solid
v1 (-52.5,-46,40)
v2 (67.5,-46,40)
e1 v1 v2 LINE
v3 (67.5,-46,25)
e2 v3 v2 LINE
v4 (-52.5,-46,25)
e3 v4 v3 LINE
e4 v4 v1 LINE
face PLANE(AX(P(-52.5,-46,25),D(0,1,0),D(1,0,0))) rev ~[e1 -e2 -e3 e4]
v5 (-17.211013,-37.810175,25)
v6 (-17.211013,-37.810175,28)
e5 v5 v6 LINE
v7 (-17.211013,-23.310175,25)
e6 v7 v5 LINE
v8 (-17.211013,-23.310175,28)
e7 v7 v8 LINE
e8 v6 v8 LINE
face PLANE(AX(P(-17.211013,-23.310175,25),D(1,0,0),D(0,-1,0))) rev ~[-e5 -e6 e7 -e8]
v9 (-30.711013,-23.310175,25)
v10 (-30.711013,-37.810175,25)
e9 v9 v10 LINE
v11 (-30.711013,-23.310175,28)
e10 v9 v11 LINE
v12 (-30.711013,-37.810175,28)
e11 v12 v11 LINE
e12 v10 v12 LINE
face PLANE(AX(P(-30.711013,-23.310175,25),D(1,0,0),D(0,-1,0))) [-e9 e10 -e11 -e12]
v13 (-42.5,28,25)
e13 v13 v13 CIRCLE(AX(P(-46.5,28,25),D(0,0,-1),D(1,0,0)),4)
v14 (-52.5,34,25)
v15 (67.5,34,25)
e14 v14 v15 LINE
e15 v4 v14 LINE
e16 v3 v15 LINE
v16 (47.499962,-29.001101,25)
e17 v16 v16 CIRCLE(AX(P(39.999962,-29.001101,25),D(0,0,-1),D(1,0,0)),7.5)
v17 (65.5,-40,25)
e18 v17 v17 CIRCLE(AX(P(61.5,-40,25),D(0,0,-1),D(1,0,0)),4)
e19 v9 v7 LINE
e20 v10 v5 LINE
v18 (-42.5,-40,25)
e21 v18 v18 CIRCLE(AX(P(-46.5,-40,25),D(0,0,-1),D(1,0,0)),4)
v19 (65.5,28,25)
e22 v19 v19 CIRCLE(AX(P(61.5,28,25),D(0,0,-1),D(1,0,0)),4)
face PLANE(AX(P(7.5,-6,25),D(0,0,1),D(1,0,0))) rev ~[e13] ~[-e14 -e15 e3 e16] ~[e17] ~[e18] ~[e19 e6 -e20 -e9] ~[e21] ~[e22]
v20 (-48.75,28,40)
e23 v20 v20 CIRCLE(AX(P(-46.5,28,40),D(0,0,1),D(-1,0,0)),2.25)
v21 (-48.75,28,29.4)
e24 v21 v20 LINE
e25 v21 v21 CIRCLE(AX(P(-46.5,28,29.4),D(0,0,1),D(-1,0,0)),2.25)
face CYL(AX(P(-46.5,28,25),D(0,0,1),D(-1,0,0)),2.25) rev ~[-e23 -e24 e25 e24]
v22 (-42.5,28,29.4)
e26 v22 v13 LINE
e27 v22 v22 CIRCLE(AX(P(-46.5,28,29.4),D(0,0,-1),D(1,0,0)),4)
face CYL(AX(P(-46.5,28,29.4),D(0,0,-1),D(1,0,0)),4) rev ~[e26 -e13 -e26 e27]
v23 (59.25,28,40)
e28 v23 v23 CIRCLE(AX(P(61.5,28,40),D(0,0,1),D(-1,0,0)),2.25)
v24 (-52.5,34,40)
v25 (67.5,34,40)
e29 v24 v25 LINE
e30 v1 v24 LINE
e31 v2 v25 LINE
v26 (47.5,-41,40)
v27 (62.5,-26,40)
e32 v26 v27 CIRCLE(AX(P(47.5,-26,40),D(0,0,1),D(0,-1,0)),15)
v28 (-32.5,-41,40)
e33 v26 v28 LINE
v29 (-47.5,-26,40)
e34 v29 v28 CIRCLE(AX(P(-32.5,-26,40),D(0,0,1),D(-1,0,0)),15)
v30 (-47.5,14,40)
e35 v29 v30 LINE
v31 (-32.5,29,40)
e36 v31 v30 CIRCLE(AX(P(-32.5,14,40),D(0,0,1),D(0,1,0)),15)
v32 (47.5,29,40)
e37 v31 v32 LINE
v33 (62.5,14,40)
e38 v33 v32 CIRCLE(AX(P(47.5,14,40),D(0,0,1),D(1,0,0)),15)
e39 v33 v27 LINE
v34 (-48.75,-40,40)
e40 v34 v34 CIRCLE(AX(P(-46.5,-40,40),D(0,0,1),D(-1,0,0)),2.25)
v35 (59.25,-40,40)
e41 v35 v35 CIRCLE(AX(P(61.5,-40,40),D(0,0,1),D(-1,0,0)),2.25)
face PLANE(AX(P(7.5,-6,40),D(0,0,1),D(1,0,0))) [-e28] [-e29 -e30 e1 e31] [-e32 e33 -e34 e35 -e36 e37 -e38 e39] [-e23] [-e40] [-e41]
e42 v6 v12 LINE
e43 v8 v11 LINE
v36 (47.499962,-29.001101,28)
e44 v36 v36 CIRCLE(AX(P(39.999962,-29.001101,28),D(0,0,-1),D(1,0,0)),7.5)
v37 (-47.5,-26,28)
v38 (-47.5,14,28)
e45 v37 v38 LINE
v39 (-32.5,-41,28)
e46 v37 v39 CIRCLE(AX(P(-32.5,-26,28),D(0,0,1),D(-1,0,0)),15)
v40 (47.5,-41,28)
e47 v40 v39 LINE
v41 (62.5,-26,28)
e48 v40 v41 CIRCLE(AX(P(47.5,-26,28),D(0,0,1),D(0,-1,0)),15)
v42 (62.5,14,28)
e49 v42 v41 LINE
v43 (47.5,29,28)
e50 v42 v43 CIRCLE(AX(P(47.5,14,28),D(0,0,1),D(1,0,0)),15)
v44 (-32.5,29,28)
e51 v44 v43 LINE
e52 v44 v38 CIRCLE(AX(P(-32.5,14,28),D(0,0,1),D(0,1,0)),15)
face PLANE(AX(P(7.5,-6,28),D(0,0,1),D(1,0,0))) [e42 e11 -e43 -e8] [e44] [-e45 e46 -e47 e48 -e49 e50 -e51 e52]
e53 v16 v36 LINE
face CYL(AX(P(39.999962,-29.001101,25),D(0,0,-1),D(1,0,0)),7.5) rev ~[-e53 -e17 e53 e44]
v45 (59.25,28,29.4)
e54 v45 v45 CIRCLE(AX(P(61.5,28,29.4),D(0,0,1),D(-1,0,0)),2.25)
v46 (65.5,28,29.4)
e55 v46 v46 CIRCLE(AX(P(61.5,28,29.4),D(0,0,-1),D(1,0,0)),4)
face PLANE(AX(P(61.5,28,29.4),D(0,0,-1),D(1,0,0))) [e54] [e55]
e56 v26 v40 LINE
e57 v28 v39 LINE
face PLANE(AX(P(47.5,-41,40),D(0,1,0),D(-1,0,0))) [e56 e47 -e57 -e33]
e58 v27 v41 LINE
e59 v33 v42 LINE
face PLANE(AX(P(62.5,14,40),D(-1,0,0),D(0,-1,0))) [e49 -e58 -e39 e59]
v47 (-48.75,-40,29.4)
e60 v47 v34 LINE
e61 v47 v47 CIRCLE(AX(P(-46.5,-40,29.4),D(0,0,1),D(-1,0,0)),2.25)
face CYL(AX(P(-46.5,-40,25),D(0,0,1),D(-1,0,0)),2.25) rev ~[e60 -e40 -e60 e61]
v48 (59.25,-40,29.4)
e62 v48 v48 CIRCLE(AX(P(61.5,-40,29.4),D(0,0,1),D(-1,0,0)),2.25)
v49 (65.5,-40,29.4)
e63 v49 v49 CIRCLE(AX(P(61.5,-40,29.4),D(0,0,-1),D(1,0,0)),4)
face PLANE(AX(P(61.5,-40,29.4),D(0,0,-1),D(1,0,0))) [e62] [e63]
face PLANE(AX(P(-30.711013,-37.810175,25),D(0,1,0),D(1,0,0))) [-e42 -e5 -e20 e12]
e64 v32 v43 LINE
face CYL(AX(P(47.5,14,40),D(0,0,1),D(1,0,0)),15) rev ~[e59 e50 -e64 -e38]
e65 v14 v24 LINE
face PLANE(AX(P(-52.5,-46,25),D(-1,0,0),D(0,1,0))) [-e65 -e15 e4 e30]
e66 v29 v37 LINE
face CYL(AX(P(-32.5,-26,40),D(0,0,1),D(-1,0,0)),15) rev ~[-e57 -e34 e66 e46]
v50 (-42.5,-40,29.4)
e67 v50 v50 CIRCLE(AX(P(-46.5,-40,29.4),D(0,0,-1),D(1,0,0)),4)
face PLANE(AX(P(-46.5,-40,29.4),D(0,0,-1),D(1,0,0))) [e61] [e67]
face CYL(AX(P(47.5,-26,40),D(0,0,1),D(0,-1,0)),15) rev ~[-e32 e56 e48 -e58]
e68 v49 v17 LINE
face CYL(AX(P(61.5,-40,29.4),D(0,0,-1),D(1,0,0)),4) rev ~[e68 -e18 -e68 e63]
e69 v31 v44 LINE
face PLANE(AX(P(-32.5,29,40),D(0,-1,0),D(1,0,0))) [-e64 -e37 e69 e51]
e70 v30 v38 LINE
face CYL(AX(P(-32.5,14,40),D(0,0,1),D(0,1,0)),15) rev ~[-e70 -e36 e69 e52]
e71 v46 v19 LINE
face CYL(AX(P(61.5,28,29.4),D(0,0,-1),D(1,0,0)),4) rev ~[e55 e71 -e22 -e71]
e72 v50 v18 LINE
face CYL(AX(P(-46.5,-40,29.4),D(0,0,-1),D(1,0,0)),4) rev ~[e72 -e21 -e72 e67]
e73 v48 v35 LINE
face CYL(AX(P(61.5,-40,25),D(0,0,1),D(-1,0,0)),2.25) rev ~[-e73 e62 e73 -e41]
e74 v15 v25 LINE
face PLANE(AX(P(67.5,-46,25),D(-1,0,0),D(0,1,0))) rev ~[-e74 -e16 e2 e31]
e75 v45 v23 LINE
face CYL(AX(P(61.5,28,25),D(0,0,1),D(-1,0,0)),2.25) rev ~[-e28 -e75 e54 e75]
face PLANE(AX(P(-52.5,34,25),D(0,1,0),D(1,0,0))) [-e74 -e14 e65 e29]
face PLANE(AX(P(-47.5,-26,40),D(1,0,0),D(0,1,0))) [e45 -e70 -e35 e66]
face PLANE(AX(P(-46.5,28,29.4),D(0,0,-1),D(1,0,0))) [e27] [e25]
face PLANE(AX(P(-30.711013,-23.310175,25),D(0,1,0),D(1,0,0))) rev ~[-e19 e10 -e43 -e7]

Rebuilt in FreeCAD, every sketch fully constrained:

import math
import FreeCAD as App
import Part
import Sketcher
from FreeCAD import Vector
Q = App.Units.Quantity

doc = App.newDocument("Part")
body = doc.addObject("PartDesign::Body", "Body")

# Sketch on XY plane
sketch1 = body.newObject("Sketcher::SketchObject", "Sketch")
sketch1.AttachmentSupport = (doc.getObject("XY_Plane"), [""])
sketch1.MapMode = "FlatFace"
sketch1.AttachmentOffset = App.Placement(Vector(0, 0, 25), App.Rotation())
sketch1.addGeometry(Part.LineSegment(Vector(-52, 34, 0), Vector(-52, -46, 0)), False)
sketch1.addGeometry(Part.LineSegment(Vector(-52, -46, 0), Vector(68, -46, 0)), False)
sketch1.addGeometry(Part.LineSegment(Vector(68, -46, 0), Vector(68, 34, 0)), False)
sketch1.addGeometry(Part.LineSegment(Vector(68, 34, 0), Vector(-52, 34, 0)), False)
sketch1.addConstraint(Sketcher.Constraint("Coincident", 0, 2, 1, 1))
sketch1.addConstraint(Sketcher.Constraint("Coincident", 1, 2, 2, 1))
sketch1.addConstraint(Sketcher.Constraint("Coincident", 2, 2, 3, 1))
sketch1.addConstraint(Sketcher.Constraint("Coincident", 3, 2, 0, 1))
sketch1.addConstraint(Sketcher.Constraint("Vertical", 0))
sketch1.addConstraint(Sketcher.Constraint("Horizontal", 1))
sketch1.addConstraint(Sketcher.Constraint("Vertical", 2))
sketch1.addConstraint(Sketcher.Constraint("Horizontal", 3))
sketch1.addConstraint(Sketcher.Constraint("DistanceX", 1, 1, 1, 2, Q("120 mm")))
sketch1.addConstraint(Sketcher.Constraint("DistanceY", 0, 2, 0, 1, Q("80 mm")))
sketch1.addConstraint(Sketcher.Constraint("DistanceY", 0, 2, -1, 1, Q("46 mm")))
sketch1.addConstraint(Sketcher.Constraint("DistanceX", 0, 2, -1, 1, Q("52.5 mm")))
pad1 = body.newObject("PartDesign::Pad", "Pad")
pad1.Profile = sketch1
pad1.Length = 15

# Sketch on XY plane
sketch2 = body.newObject("Sketcher::SketchObject", "Sketch001")
sketch2.AttachmentSupport = (doc.getObject("XY_Plane"), [""])
sketch2.MapMode = "FlatFace"
sketch2.AttachmentOffset = App.Placement(Vector(0, 0, 40), App.Rotation())
sketch2.addGeometry(Part.ArcOfCircle(Part.Circle(Vector(-32, 14, 0), Vector(0, 0, 1), 15), math.radians(90), math.radians(180)), False)
sketch2.addGeometry(Part.LineSegment(Vector(-48, 14, 0), Vector(-48, -26, 0)), False)
sketch2.addGeometry(Part.ArcOfCircle(Part.Circle(Vector(-32, -26, 0), Vector(0, 0, 1), 15), math.radians(180), math.radians(270)), False)
sketch2.addGeometry(Part.LineSegment(Vector(-32, -41, 0), Vector(48, -41, 0)), False)
sketch2.addGeometry(Part.ArcOfCircle(Part.Circle(Vector(48, -26, 0), Vector(0, 0, 1), 15), math.radians(-90), math.radians(0)), False)
sketch2.addGeometry(Part.LineSegment(Vector(62, -26, 0), Vector(62, 14, 0)), False)
sketch2.addGeometry(Part.ArcOfCircle(Part.Circle(Vector(48, 14, 0), Vector(0, 0, 1), 15), math.radians(0), math.radians(90)), False)
sketch2.addGeometry(Part.LineSegment(Vector(48, 29, 0), Vector(-32, 29, 0)), False)
sketch2.addConstraint(Sketcher.Constraint("Tangent", 0, 2, 1, 1))
sketch2.addConstraint(Sketcher.Constraint("Tangent", 1, 2, 2, 1))
sketch2.addConstraint(Sketcher.Constraint("Tangent", 2, 2, 3, 1))
sketch2.addConstraint(Sketcher.Constraint("Tangent", 3, 2, 4, 1))
sketch2.addConstraint(Sketcher.Constraint("Tangent", 4, 2, 5, 1))
sketch2.addConstraint(Sketcher.Constraint("Tangent", 5, 2, 6, 1))
sketch2.addConstraint(Sketcher.Constraint("Tangent", 6, 2, 7, 1))
sketch2.addConstraint(Sketcher.Constraint("Tangent", 7, 2, 0, 1))
sketch2.addConstraint(Sketcher.Constraint("Vertical", 1))
sketch2.addConstraint(Sketcher.Constraint("Horizontal", 3))
sketch2.addConstraint(Sketcher.Constraint("Vertical", 5))
sketch2.addConstraint(Sketcher.Constraint("Horizontal", 7))
sketch2.addConstraint(Sketcher.Constraint("Equal", 0, 2))
sketch2.addConstraint(Sketcher.Constraint("Equal", 2, 4))
sketch2.addConstraint(Sketcher.Constraint("Equal", 4, 6))
sketch2.addConstraint(Sketcher.Constraint("Radius", 0, Q("15 mm")))
sketch2.addConstraint(Sketcher.Constraint("DistanceX", 3, 1, 3, 2, Q("80 mm")))
sketch2.addConstraint(Sketcher.Constraint("DistanceY", 1, 2, 1, 1, Q("40 mm")))
sketch2.addConstraint(Sketcher.Constraint("DistanceY", -1, 1, 0, 3, Q("14 mm")))
sketch2.addConstraint(Sketcher.Constraint("DistanceX", 0, 3, -1, 1, Q("32.5 mm")))
pocket1 = body.newObject("PartDesign::Pocket", "Pocket")
pocket1.Profile = sketch2
pocket1.Length = 12

# Sketch on XY plane
sketch3 = body.newObject("Sketcher::SketchObject", "Sketch002")
sketch3.AttachmentSupport = (doc.getObject("XY_Plane"), [""])
sketch3.MapMode = "FlatFace"
sketch3.AttachmentOffset = App.Placement(Vector(0, 0, 25), App.Rotation())
sketch3.addGeometry(Part.Circle(Vector(-46.5, -40, 0), Vector(0, 0, 1), 2.2), False)
sketch3.addGeometry(Part.Circle(Vector(61.5, -40, 0), Vector(0, 0, 1), 2.2), False)
sketch3.addGeometry(Part.Circle(Vector(-46.5, 28, 0), Vector(0, 0, 1), 2.2), False)
sketch3.addGeometry(Part.Circle(Vector(61.5, 28, 0), Vector(0, 0, 1), 2.2), False)
sketch3.addConstraint(Sketcher.Constraint("Equal", 0, 1))
sketch3.addConstraint(Sketcher.Constraint("Equal", 1, 2))
sketch3.addConstraint(Sketcher.Constraint("Equal", 2, 3))
sketch3.addConstraint(Sketcher.Constraint("Horizontal", 0, 3, 1, 3))
sketch3.addConstraint(Sketcher.Constraint("Horizontal", 2, 3, 3, 3))
sketch3.addConstraint(Sketcher.Constraint("Vertical", 0, 3, 2, 3))
sketch3.addConstraint(Sketcher.Constraint("Vertical", 1, 3, 3, 3))
sketch3.addConstraint(Sketcher.Constraint("Diameter", 0, Q("4.5 mm")))
sketch3.addConstraint(Sketcher.Constraint("DistanceY", 0, 3, -1, 1, Q("40 mm")))
sketch3.addConstraint(Sketcher.Constraint("DistanceY", -1, 1, 2, 3, Q("28 mm")))
sketch3.addConstraint(Sketcher.Constraint("DistanceX", 0, 3, 1, 3, Q("108 mm")))
sketch3.addConstraint(Sketcher.Constraint("DistanceX", 0, 3, -1, 1, Q("46.5 mm")))
doc.recompute()
hole = body.newObject("PartDesign::Hole", "Hole")
hole.Profile = sketch3
hole.ThreadType = "None"
hole.Diameter = 4.5
hole.DepthType = "Dimension"
hole.Depth = 25
hole.DrillPoint = "Flat"
hole.HoleCutType = "Counterbore"
hole.HoleCutDiameter = 8
hole.HoleCutDepth = 4.4
hole.Reversed = True

# Sketch on XY plane
sketch4 = body.newObject("Sketcher::SketchObject", "Sketch003")
sketch4.AttachmentSupport = (doc.getObject("XY_Plane"), [""])
sketch4.MapMode = "FlatFace"
sketch4.AttachmentOffset = App.Placement(Vector(0, 0, 25), App.Rotation())
sketch4.addGeometry(Part.Circle(Vector(40, -29, 0), Vector(0, 0, 1), 8), False)
sketch4.addGeometry(Part.LineSegment(Vector(-31, -38, 0), Vector(-31, -23, 0)), False)
sketch4.addGeometry(Part.LineSegment(Vector(-31, -23, 0), Vector(-17, -23, 0)), False)
sketch4.addGeometry(Part.LineSegment(Vector(-17, -23, 0), Vector(-17, -38, 0)), False)
sketch4.addGeometry(Part.LineSegment(Vector(-17, -38, 0), Vector(-31, -38, 0)), False)
sketch4.addConstraint(Sketcher.Constraint("Coincident", 1, 2, 2, 1))
sketch4.addConstraint(Sketcher.Constraint("Coincident", 2, 2, 3, 1))
sketch4.addConstraint(Sketcher.Constraint("Coincident", 3, 2, 4, 1))
sketch4.addConstraint(Sketcher.Constraint("Coincident", 4, 2, 1, 1))
sketch4.addConstraint(Sketcher.Constraint("Vertical", 1))
sketch4.addConstraint(Sketcher.Constraint("Horizontal", 2))
sketch4.addConstraint(Sketcher.Constraint("Vertical", 3))
sketch4.addConstraint(Sketcher.Constraint("Horizontal", 4))
sketch4.addConstraint(Sketcher.Constraint("Diameter", 0, Q("15 mm")))
sketch4.addConstraint(Sketcher.Constraint("DistanceX", 2, 1, 2, 2, Q("13.5 mm")))
sketch4.addConstraint(Sketcher.Constraint("DistanceY", 1, 1, 1, 2, Q("14.5 mm")))
sketch4.addConstraint(Sketcher.Constraint("DistanceY", 0, 3, -1, 1, Q("29.001101 mm")))
sketch4.addConstraint(Sketcher.Constraint("DistanceX", -1, 1, 0, 3, Q("39.999962 mm")))
sketch4.addConstraint(Sketcher.Constraint("DistanceX", 1, 2, -1, 1, Q("30.711013 mm")))
sketch4.addConstraint(Sketcher.Constraint("DistanceY", 1, 2, -1, 1, Q("23.310175 mm")))
pocket2 = body.newObject("PartDesign::Pocket", "Pocket001")
pocket2.Profile = sketch4
pocket2.Length = 5
pocket2.Reversed = True

doc.recompute()
